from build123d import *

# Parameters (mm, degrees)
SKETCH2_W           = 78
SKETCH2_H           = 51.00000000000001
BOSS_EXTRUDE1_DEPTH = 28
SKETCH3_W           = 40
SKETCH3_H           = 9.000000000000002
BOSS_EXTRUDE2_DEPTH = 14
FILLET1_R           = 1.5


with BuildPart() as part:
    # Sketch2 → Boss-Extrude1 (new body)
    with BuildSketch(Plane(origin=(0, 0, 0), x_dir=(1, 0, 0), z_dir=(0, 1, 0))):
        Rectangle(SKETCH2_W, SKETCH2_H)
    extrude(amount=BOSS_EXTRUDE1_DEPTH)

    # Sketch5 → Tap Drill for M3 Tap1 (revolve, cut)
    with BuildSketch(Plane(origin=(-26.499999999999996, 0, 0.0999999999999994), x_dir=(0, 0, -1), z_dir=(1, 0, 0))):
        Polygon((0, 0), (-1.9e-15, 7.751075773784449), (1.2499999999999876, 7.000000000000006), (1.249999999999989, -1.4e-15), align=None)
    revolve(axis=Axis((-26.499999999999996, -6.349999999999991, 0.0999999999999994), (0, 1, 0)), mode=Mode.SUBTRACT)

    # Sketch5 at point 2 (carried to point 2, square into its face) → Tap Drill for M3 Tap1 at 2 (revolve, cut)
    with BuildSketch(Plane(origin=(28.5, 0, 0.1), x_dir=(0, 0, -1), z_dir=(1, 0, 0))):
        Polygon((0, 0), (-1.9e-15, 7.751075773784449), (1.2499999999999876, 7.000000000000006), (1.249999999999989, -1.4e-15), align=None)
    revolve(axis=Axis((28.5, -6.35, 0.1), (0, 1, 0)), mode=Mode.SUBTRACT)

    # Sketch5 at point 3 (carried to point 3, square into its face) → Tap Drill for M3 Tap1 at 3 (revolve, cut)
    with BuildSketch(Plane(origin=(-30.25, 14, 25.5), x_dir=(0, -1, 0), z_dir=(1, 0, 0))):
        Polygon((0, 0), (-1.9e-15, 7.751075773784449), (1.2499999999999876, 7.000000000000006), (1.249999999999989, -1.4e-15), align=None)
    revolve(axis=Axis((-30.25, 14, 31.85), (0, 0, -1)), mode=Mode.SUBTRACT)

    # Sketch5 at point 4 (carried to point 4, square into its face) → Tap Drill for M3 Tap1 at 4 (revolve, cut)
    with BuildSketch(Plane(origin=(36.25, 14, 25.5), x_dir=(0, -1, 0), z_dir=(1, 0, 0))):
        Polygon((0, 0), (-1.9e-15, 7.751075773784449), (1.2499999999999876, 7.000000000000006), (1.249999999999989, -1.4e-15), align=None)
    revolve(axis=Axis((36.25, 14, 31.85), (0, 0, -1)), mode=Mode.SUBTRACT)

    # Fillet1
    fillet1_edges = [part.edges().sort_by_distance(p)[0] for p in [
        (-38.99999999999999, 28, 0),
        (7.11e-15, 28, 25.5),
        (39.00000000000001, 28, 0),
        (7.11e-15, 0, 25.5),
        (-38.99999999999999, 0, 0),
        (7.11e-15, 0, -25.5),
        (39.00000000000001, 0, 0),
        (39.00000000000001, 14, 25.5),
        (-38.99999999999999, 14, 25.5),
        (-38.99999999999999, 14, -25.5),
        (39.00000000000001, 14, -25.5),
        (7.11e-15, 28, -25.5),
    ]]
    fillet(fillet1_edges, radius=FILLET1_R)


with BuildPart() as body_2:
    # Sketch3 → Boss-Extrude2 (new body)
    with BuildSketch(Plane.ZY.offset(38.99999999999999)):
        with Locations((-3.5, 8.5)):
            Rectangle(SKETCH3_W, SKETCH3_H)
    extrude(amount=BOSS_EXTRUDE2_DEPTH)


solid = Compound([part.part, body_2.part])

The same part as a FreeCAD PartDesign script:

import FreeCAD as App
import Part
import Sketcher

V = App.Vector
Q = App.Units.Quantity


def edges_at(feature, points):
    """Names of the edges that pass closest to the given points."""
    edges = feature.Shape.Edges
    near = lambda p: min(range(len(edges)), key=lambda i: edges[i].distToShape(Part.Vertex(*p))[0])
    return sorted({f"Edge{near(p) + 1}" for p in points})

doc = App.newDocument("Part")
body = doc.addObject("PartDesign::Body", "Body")

# Sketch on XZ plane
sketch1 = doc.addObject("Sketcher::SketchObject", "Sketch")
body.addObject(sketch1)
sketch1.AttachmentSupport = (doc.XZ_Plane, [""])
sketch1.MapMode = "FlatFace"
sketch1.addGeometry([
    Part.LineSegment(V(-39, -26, 0), V(-39, 26, 0)),
    Part.LineSegment(V(-39, 26, 0), V(39, 26, 0)),
    Part.LineSegment(V(39, 26, 0), V(39, -26, 0)),
    Part.LineSegment(V(39, -26, 0), V(-39, -26, 0)),
], False)
sketch1.addConstraint([
    Sketcher.Constraint("Coincident", 0, 2, 1, 1),
    Sketcher.Constraint("Coincident", 1, 2, 2, 1),
    Sketcher.Constraint("Coincident", 2, 2, 3, 1),
    Sketcher.Constraint("Coincident", 3, 2, 0, 1),
    Sketcher.Constraint("Vertical", 0),
    Sketcher.Constraint("Horizontal", 1),
    Sketcher.Constraint("Vertical", 2),
    Sketcher.Constraint("Horizontal", 3),
    Sketcher.Constraint("Symmetric", 0, 2, 2, 2, -1, 1),
    Sketcher.Constraint("DistanceX", 1, 1, 1, 2, Q("78 mm")),
    Sketcher.Constraint("DistanceY", 0, 1, 0, 2, Q("51 mm")),
])
pad1 = doc.addObject("PartDesign::Pad", "Pad")
body.addObject(pad1)
pad1.Profile = sketch1
pad1.Length = 28
pad1.Reversed = True

# Sketch on YZ plane
sketch2 = doc.addObject("Sketcher::SketchObject", "Sketch001")
body.addObject(sketch2)
sketch2.AttachmentSupport = (doc.YZ_Plane, [""])
sketch2.MapMode = "FlatFace"
sketch2.AttachmentOffset = App.Placement(V(0, 0, -26.5), App.Rotation())
sketch2.addGeometry([
    Part.LineSegment(V(7.8, 0.1, 0), V(0, 0.1, 0)),
    Part.LineSegment(V(0, 0.1, 0), V(0, -1.1, 0)),
    Part.LineSegment(V(0, -1.1, 0), V(7, -1.1, 0)),
    Part.LineSegment(V(7, -1.1, 0), V(7.8, 0.1, 0)),
], False)
sketch2.addGeometry(Part.LineSegment(V(0, 0.1, 0), V(7.8, 0.1, 0)), True)  # axis
sketch2.addConstraint([
    Sketcher.Constraint("Coincident", 0, 2, 1, 1),
    Sketcher.Constraint("Coincident", 1, 2, 2, 1),
    Sketcher.Constraint("Coincident", 2, 2, 3, 1),
    Sketcher.Constraint("Coincident", 3, 2, 0, 1),
    Sketcher.Constraint("Horizontal", 0),
    Sketcher.Constraint("Vertical", 1),
    Sketcher.Constraint("Horizontal", 2),
    Sketcher.Constraint("Horizontal", 4),
    Sketcher.Constraint("Coincident", 4, 1, 0, 2),
    Sketcher.Constraint("PointOnObject", 0, 2, -2),
    Sketcher.Constraint("Equal", 0, 4),
    Sketcher.Constraint("DistanceX", 2, 1, 2, 2, Q("7 mm")),
    Sketcher.Constraint("Angle", 3, Q("59 deg")),
    Sketcher.Constraint("DistanceY", 1, 2, 1, 1, Q("1.25 mm")),
    Sketcher.Constraint("DistanceY", -1, 1, 0, 2, Q("0.1 mm")),
])
groove = doc.addObject("PartDesign::Groove", "Groove")
body.addObject(groove)
groove.Profile = sketch2
groove.ReferenceAxis = (sketch2, ["Axis0"])
groove.Angle = 360

# Sketch on YZ plane
sketch3 = doc.addObject("Sketcher::SketchObject", "Sketch002")
body.addObject(sketch3)
sketch3.AttachmentSupport = (doc.YZ_Plane, [""])
sketch3.MapMode = "FlatFace"
sketch3.AttachmentOffset = App.Placement(V(0, 0, 28.5), App.Rotation())
sketch3.addGeometry([
    Part.LineSegment(V(7.8, 0.1, 0), V(0, 0.1, 0)),
    Part.LineSegment(V(0, 0.1, 0), V(0, -1.1, 0)),
    Part.LineSegment(V(0, -1.1, 0), V(7, -1.1, 0)),
    Part.LineSegment(V(7, -1.1, 0), V(7.8, 0.1, 0)),
], False)
sketch3.addGeometry(Part.LineSegment(V(0, 0.1, 0), V(7.8, 0.1, 0)), True)  # axis
sketch3.addConstraint([
    Sketcher.Constraint("Coincident", 0, 2, 1, 1),
    Sketcher.Constraint("Coincident", 1, 2, 2, 1),
    Sketcher.Constraint("Coincident", 2, 2, 3, 1),
    Sketcher.Constraint("Coincident", 3, 2, 0, 1),
    Sketcher.Constraint("Horizontal", 0),
    Sketcher.Constraint("Vertical", 1),
    Sketcher.Constraint("Horizontal", 2),
    Sketcher.Constraint("Horizontal", 4),
    Sketcher.Constraint("Coincident", 4, 1, 0, 2),
    Sketcher.Constraint("PointOnObject", 0, 2, -2),
    Sketcher.Constraint("Equal", 0, 4),
    Sketcher.Constraint("DistanceX", 2, 1, 2, 2, Q("7 mm")),
    Sketcher.Constraint("Angle", 3, Q("59 deg")),
    Sketcher.Constraint("DistanceY", 1, 2, 1, 1, Q("1.25 mm")),
    Sketcher.Constraint("DistanceY", -1, 1, 0, 2, Q("0.1 mm")),
])
groove2 = doc.addObject("PartDesign::Groove", "Groove001")
body.addObject(groove2)
groove2.Profile = sketch3
groove2.ReferenceAxis = (sketch3, ["Axis0"])
groove2.Angle = 360

# Sketch on YZ plane
sketch4 = doc.addObject("Sketcher::SketchObject", "Sketch003")
body.addObject(sketch4)
sketch4.AttachmentSupport = (doc.YZ_Plane, [""])
sketch4.MapMode = "FlatFace"
sketch4.AttachmentOffset = App.Placement(V(0, 0, -30.25), App.Rotation())
sketch4.addGeometry([
    Part.LineSegment(V(14, 17.7, 0), V(14, 25.5, 0)),
    Part.LineSegment(V(14, 25.5, 0), V(12.8, 25.5, 0)),
    Part.LineSegment(V(12.8, 25.5, 0), V(12.8, 18.5, 0)),
    Part.LineSegment(V(12.8, 18.5, 0), V(14, 17.7, 0)),
], False)
sketch4.addGeometry(Part.LineSegment(V(14, 25.5, 0), V(14, 17.7, 0)), True)  # axis
sketch4.addConstraint([
    Sketcher.Constraint("Coincident", 0, 2, 1, 1),
    Sketcher.Constraint("Coincident", 1, 2, 2, 1),
    Sketcher.Constraint("Coincident", 2, 2, 3, 1),
    Sketcher.Constraint("Coincident", 3, 2, 0, 1),
    Sketcher.Constraint("Vertical", 0),
    Sketcher.Constraint("Horizontal", 1),
    Sketcher.Constraint("Vertical", 2),
    Sketcher.Constraint("Vertical", 4),
    Sketcher.Constraint("Coincident", 4, 1, 0, 2),
    Sketcher.Constraint("Equal", 0, 4),
    Sketcher.Constraint("DistanceY", 2, 2, 2, 1, Q("7 mm")),
    Sketcher.Constraint("Angle", 3, Q("-31 deg")),
    Sketcher.Constraint("DistanceX", -1, 1, 0, 2, Q("14 mm")),
    Sketcher.Constraint("DistanceX", 1, 2, 1, 1, Q("1.25 mm")),
    Sketcher.Constraint("DistanceY", -1, 1, 0, 2, Q("25.5 mm")),
])
groove3 = doc.addObject("PartDesign::Groove", "Groove002")
body.addObject(groove3)
groove3.Profile = sketch4
groove3.ReferenceAxis = (sketch4, ["Axis0"])
groove3.Angle = 360

# Sketch on YZ plane
sketch5 = doc.addObject("Sketcher::SketchObject", "Sketch004")
body.addObject(sketch5)
sketch5.AttachmentSupport = (doc.YZ_Plane, [""])
sketch5.MapMode = "FlatFace"
sketch5.AttachmentOffset = App.Placement(V(0, 0, 36.25), App.Rotation())
sketch5.addGeometry([
    Part.LineSegment(V(14, 17.7, 0), V(14, 25.5, 0)),
    Part.LineSegment(V(14, 25.5, 0), V(12.8, 25.5, 0)),
    Part.LineSegment(V(12.8, 25.5, 0), V(12.8, 18.5, 0)),
    Part.LineSegment(V(12.8, 18.5, 0), V(14, 17.7, 0)),
], False)
sketch5.addGeometry(Part.LineSegment(V(14, 25.5, 0), V(14, 17.7, 0)), True)  # axis
sketch5.addConstraint([
    Sketcher.Constraint("Coincident", 0, 2, 1, 1),
    Sketcher.Constraint("Coincident", 1, 2, 2, 1),
    Sketcher.Constraint("Coincident", 2, 2, 3, 1),
    Sketcher.Constraint("Coincident", 3, 2, 0, 1),
    Sketcher.Constraint("Vertical", 0),
    Sketcher.Constraint("Horizontal", 1),
    Sketcher.Constraint("Vertical", 2),
    Sketcher.Constraint("Vertical", 4),
    Sketcher.Constraint("Coincident", 4, 1, 0, 2),
    Sketcher.Constraint("Equal", 0, 4),
    Sketcher.Constraint("DistanceY", 2, 2, 2, 1, Q("7 mm")),
    Sketcher.Constraint("Angle", 3, Q("-31 deg")),
    Sketcher.Constraint("DistanceX", -1, 1, 0, 2, Q("14 mm")),
    Sketcher.Constraint("DistanceX", 1, 2, 1, 1, Q("1.25 mm")),
    Sketcher.Constraint("DistanceY", -1, 1, 0, 2, Q("25.5 mm")),
])
groove4 = doc.addObject("PartDesign::Groove", "Groove003")
body.addObject(groove4)
groove4.Profile = sketch5
groove4.ReferenceAxis = (sketch5, ["Axis0"])
groove4.Angle = 360
doc.recompute()

fillet = doc.addObject("PartDesign::Fillet", "Fillet")
body.addObject(fillet)
fillet.Base = (groove4, edges_at(groove4, [
    (-39, 28, 0),
    (0, 28, 25.5),
    (39, 28, 0),
    (0, 0, 25.5),
    (-39, 0, 0),
    (0, 0, -25.5),
    (39, 0, 0),
    (39, 14, 25.5),
    (-39, 14, 25.5),
    (-39, 14, -25.5),
    (39, 14, -25.5),
    (0, 28, -25.5),
]))
fillet.Radius = 1.5
body2 = doc.addObject("PartDesign::Body", "Body001")

# Sketch on YZ plane
sketch6 = doc.addObject("Sketcher::SketchObject", "Sketch005")
body2.addObject(sketch6)
sketch6.AttachmentSupport = (doc.getObject("YZ_Plane001"), [""])
sketch6.MapMode = "FlatFace"
sketch6.AttachmentOffset = App.Placement(V(0, 0, -39), App.Rotation())
sketch6.addGeometry([
    Part.LineSegment(V(13, -24, 0), V(4, -24, 0)),
    Part.LineSegment(V(4, -24, 0), V(4, 16, 0)),
    Part.LineSegment(V(4, 16, 0), V(13, 16, 0)),
    Part.LineSegment(V(13, 16, 0), V(13, -24, 0)),
], False)
sketch6.addConstraint([
    Sketcher.Constraint("Coincident", 0, 2, 1, 1),
    Sketcher.Constraint("Coincident", 1, 2, 2, 1),
    Sketcher.Constraint("Coincident", 2, 2, 3, 1),
    Sketcher.Constraint("Coincident", 3, 2, 0, 1),
    Sketcher.Constraint("Horizontal", 0),
    Sketcher.Constraint("Vertical", 1),
    Sketcher.Constraint("Horizontal", 2),
    Sketcher.Constraint("Vertical", 3),
    Sketcher.Constraint("DistanceX", 0, 2, 0, 1, Q("9 mm")),
    Sketcher.Constraint("DistanceY", 1, 1, 1, 2, Q("40 mm")),
    Sketcher.Constraint("DistanceX", -1, 1, 0, 2, Q("4 mm")),
    Sketcher.Constraint("DistanceY", 0, 2, -1, 1, Q("23.5 mm")),
])
pad2 = doc.addObject("PartDesign::Pad", "Pad001")
body2.addObject(pad2)
pad2.Profile = sketch6
pad2.Length = 14
pad2.Reversed = True

doc.recompute()
